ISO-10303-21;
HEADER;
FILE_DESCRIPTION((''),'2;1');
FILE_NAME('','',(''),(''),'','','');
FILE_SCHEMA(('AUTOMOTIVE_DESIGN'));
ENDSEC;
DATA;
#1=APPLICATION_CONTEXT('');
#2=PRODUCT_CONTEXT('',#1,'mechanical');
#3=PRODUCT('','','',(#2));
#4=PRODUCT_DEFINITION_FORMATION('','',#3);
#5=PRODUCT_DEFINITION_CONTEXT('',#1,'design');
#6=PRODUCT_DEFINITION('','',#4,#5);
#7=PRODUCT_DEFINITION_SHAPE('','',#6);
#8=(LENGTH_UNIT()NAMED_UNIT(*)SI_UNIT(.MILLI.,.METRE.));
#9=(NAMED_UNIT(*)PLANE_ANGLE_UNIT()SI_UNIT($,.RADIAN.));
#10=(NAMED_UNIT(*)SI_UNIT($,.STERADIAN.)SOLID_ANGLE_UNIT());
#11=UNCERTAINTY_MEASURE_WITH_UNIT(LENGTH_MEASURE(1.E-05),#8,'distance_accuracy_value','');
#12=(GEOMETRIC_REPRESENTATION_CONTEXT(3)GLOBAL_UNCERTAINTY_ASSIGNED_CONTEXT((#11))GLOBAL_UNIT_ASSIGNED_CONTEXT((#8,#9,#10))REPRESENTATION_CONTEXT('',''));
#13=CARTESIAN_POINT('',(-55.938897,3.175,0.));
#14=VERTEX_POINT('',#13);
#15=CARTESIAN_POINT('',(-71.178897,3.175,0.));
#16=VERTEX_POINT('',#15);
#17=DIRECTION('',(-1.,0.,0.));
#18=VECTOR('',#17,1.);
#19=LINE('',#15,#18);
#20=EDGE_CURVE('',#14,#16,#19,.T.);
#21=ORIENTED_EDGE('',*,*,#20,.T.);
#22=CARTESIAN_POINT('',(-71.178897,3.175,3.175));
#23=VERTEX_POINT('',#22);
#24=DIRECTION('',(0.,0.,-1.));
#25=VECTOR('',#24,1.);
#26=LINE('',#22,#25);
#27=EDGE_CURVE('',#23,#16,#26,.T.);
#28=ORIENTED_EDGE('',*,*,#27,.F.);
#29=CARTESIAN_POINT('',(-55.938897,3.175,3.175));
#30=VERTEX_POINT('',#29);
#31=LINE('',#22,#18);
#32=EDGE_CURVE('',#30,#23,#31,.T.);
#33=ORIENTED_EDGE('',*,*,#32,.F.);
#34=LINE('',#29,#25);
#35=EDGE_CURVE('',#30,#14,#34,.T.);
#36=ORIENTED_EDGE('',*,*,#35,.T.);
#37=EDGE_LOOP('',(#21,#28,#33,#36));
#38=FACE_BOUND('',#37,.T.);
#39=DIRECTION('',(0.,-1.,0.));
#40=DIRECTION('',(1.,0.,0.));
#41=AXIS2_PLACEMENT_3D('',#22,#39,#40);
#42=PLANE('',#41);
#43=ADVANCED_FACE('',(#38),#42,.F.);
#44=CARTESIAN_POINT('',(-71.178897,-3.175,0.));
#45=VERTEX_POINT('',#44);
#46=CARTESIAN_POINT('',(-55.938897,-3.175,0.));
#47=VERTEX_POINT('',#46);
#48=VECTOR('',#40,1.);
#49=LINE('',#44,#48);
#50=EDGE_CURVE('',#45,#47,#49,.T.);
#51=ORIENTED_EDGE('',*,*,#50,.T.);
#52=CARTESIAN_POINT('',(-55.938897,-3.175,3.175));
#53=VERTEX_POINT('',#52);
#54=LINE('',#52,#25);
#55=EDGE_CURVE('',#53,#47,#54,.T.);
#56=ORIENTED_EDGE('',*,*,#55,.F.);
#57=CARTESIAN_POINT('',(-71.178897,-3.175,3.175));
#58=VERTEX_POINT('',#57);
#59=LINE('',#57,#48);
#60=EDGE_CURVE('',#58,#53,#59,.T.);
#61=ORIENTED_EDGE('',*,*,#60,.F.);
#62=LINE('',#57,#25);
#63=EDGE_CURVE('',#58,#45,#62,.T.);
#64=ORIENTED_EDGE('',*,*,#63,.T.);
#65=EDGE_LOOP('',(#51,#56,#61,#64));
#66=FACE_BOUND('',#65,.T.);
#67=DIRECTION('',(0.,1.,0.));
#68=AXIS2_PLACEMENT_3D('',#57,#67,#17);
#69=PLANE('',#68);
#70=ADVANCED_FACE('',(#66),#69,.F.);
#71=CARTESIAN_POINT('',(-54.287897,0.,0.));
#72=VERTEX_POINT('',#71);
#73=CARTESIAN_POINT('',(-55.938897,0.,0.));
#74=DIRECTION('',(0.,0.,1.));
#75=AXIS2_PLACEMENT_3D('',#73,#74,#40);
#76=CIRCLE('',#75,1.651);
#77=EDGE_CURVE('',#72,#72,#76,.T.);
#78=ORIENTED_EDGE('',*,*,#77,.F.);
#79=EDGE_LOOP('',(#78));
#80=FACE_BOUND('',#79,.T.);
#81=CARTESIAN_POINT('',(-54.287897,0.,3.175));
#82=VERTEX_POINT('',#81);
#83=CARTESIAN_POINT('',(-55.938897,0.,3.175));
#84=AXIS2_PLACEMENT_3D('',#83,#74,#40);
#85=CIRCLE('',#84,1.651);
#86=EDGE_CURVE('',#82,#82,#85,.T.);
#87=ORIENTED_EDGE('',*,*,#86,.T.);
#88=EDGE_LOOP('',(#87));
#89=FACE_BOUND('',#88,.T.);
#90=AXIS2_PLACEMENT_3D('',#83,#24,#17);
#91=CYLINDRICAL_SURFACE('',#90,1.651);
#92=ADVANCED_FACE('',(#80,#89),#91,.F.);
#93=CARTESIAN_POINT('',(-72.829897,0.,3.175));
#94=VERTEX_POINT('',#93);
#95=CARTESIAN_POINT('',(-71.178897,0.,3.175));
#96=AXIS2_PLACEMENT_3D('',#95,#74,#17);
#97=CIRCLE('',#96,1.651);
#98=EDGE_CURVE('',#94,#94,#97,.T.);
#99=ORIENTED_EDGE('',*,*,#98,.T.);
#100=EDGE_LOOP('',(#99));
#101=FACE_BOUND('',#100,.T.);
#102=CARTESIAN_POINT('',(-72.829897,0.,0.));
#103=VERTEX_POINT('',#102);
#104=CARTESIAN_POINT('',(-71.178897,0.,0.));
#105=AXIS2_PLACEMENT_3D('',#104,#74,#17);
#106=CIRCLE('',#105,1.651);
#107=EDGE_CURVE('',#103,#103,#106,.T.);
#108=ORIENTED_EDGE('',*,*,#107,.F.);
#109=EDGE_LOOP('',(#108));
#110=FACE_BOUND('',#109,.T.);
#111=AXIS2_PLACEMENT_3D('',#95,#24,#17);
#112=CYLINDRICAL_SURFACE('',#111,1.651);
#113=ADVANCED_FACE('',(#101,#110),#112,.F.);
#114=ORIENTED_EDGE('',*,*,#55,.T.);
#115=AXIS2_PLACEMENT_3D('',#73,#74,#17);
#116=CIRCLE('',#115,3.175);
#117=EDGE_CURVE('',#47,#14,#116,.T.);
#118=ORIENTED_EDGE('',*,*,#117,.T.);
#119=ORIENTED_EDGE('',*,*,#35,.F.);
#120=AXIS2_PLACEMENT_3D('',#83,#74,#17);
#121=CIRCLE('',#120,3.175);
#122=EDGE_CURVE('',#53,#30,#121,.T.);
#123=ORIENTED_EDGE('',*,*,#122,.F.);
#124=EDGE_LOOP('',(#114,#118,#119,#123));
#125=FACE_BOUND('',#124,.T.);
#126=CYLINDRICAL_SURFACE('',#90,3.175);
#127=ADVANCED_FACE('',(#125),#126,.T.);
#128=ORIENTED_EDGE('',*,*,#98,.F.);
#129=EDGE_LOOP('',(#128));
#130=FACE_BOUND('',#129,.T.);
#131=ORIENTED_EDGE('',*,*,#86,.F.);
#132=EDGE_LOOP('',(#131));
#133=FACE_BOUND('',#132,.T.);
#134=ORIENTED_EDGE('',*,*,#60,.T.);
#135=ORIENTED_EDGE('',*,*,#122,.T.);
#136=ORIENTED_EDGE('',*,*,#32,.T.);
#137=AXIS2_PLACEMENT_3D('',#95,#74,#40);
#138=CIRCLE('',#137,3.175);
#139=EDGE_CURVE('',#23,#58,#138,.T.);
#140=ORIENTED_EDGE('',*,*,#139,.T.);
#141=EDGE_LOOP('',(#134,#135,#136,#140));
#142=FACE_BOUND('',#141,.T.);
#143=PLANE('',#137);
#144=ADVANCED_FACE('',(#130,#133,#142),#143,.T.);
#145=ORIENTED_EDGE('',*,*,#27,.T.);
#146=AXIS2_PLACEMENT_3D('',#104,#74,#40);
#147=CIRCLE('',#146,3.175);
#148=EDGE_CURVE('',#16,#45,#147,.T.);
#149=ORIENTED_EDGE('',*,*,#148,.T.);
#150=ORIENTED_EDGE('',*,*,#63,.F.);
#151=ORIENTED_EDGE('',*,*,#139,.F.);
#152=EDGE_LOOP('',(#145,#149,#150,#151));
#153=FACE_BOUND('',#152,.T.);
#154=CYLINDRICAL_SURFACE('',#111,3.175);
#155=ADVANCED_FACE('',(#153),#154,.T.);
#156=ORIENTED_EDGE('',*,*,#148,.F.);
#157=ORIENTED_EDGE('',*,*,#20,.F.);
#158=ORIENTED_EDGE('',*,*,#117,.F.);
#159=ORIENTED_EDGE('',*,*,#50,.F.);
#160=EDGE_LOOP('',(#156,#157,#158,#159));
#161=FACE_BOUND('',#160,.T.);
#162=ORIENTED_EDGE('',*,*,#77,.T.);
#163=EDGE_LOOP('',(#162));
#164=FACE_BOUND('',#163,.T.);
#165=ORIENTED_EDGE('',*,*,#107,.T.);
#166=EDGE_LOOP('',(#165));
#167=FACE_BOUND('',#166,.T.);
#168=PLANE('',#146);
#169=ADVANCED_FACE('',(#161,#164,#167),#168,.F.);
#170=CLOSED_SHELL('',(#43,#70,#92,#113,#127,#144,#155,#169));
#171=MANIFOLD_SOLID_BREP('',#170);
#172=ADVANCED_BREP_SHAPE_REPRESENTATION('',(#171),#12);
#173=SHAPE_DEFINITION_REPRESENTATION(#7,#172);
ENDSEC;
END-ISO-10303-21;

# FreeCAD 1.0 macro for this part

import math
import FreeCAD as App
import Part
import Sketcher
Q = App.Units.Quantity

doc = App.newDocument("Part")
body = doc.addObject("PartDesign::Body", "Body")

# Sketch on XY plane
sketch1 = body.newObject("Sketcher::SketchObject", "Sketch")
sketch1.AttachmentSupport = (doc.getObject("XY_Plane"), [""])
sketch1.MapMode = "FlatFace"
sketch1.addGeometry(Part.LineSegment(App.Vector(-55.9, 3.2, 0), App.Vector(-71.2, 3.2, 0)), False)
sketch1.addGeometry(Part.ArcOfCircle(Part.Circle(App.Vector(-71.2, 0, 0), App.Vector(0, 0, 1), 3.2), math.radians(90), math.radians(270)), False)
sketch1.addGeometry(Part.LineSegment(App.Vector(-71.2, -3.2, 0), App.Vector(-55.9, -3.2, 0)), False)
sketch1.addGeometry(Part.ArcOfCircle(Part.Circle(App.Vector(-55.9, 0, 0), App.Vector(0, 0, 1), 3.2), math.radians(-90), math.radians(90)), False)
sketch1.addGeometry(Part.Circle(App.Vector(-55.9, 0, 0), App.Vector(0, 0, 1), 1.7), False)
sketch1.addGeometry(Part.Circle(App.Vector(-71.2, 0, 0), App.Vector(0, 0, 1), 1.7), False)
sketch1.addConstraint(Sketcher.Constraint("Tangent", 0, 2, 1, 1))
sketch1.addConstraint(Sketcher.Constraint("Tangent", 1, 2, 2, 1))
sketch1.addConstraint(Sketcher.Constraint("Tangent", 2, 2, 3, 1))
sketch1.addConstraint(Sketcher.Constraint("Tangent", 3, 2, 0, 1))
sketch1.addConstraint(Sketcher.Constraint("Horizontal", 0))
sketch1.addConstraint(Sketcher.Constraint("Horizontal", 2))
sketch1.addConstraint(Sketcher.Constraint("Coincident", 4, 3, 3, 3))
sketch1.addConstraint(Sketcher.Constraint("Coincident", 5, 3, 1, 3))
sketch1.addConstraint(Sketcher.Constraint("Equal", 4, 5))
sketch1.addConstraint(Sketcher.Constraint("PointOnObject", 1, 3, -1))
sketch1.addConstraint(Sketcher.Constraint("Diameter", 4, Q("0.13 in")))
sketch1.addConstraint(Sketcher.Constraint("DistanceX", 0, 2, 0, 1, Q("0.6 in")))
sketch1.addConstraint(Sketcher.Constraint("Radius", 1, Q("0.125 in")))
sketch1.addConstraint(Sketcher.Constraint("DistanceX", 1, 3, -1, 1, 71.178897))
pad1 = body.newObject("PartDesign::Pad", "Pad")
pad1.Profile = sketch1
pad1.Length = Q("0.125 in")

doc.recompute()
